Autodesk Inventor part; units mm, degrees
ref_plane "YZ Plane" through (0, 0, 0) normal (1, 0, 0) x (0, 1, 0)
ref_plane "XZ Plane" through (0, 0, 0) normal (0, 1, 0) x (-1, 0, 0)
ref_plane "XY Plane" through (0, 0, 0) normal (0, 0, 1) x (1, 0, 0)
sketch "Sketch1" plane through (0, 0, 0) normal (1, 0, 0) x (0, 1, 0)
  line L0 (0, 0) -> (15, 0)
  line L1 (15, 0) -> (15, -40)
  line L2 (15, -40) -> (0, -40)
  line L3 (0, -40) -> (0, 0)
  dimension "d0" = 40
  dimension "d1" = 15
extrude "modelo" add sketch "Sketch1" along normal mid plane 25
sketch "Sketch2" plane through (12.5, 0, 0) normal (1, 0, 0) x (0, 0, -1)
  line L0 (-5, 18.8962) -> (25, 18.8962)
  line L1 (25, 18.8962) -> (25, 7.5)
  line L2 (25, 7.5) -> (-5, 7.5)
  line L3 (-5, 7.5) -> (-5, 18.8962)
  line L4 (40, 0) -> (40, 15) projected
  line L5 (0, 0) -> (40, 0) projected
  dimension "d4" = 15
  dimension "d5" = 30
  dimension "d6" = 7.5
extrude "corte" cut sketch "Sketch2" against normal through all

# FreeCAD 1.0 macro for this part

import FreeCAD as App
import Part
import Sketcher

V = App.Vector

doc = App.newDocument("Part")
body = doc.addObject("PartDesign::Body", "Body")

# Sketch on YZ plane
sketch1 = body.newObject("Sketcher::SketchObject", "Sketch")
sketch1.AttachmentSupport = (doc.getObject("YZ_Plane"), [""])
sketch1.MapMode = "FlatFace"
sketch1.addGeometry([
    Part.LineSegment(V(15, 0, 0), V(0, 0, 0)),
    Part.LineSegment(V(0, 0, 0), V(0, -40, 0)),
    Part.LineSegment(V(0, -40, 0), V(15, -40, 0)),
    Part.LineSegment(V(15, -40, 0), V(15, 0, 0)),
], False)
sketch1.addConstraint([
    Sketcher.Constraint("Coincident", 0, 2, 1, 1),
    Sketcher.Constraint("Coincident", 1, 2, 2, 1),
    Sketcher.Constraint("Coincident", 2, 2, 3, 1),
    Sketcher.Constraint("Coincident", 3, 2, 0, 1),
    Sketcher.Constraint("Horizontal", 0),
    Sketcher.Constraint("Vertical", 1),
    Sketcher.Constraint("Horizontal", 2),
    Sketcher.Constraint("Vertical", 3),
    Sketcher.Constraint("Coincident", 0, 2, -1, 1),
    Sketcher.Constraint("DistanceX", 0, 2, 0, 1, 15.0),
    Sketcher.Constraint("DistanceY", 1, 2, 1, 1, 40.0),
])
pad1 = body.newObject("PartDesign::Pad", "Pad")
pad1.Profile = sketch1
pad1.Length = 25
pad1.Midplane = True

# Sketch on YZ plane
sketch2 = body.newObject("Sketcher::SketchObject", "Sketch001")
sketch2.AttachmentSupport = (doc.getObject("YZ_Plane"), [""])
sketch2.MapMode = "FlatFace"
sketch2.AttachmentOffset = App.Placement(V(0, 0, 12.5), App.Rotation())
sketch2.addGeometry([
    Part.LineSegment(V(19, -25, 0), V(19, 5, 0)),
    Part.LineSegment(V(19, 5, 0), V(8, 5, 0)),
    Part.LineSegment(V(8, 5, 0), V(8, -25, 0)),
    Part.LineSegment(V(8, -25, 0), V(19, -25, 0)),
], False)
sketch2.addConstraint([
    Sketcher.Constraint("Coincident", 0, 2, 1, 1),
    Sketcher.Constraint("Coincident", 1, 2, 2, 1),
    Sketcher.Constraint("Coincident", 2, 2, 3, 1),
    Sketcher.Constraint("Coincident", 3, 2, 0, 1),
    Sketcher.Constraint("Vertical", 0),
    Sketcher.Constraint("Horizontal", 1),
    Sketcher.Constraint("Vertical", 2),
    Sketcher.Constraint("Horizontal", 3),
    Sketcher.Constraint("DistanceY", 0, 1, 0, 2, 30.0),
    Sketcher.Constraint("DistanceX", -1, 1, 1, 2, 7.5),
    Sketcher.Constraint("DistanceY", -1, 1, 0, 2, 5.0),
    Sketcher.Constraint("DistanceX", 1, 2, 1, 1, 11.3962),
])
pocket1 = body.newObject("PartDesign::Pocket", "Pocket")
pocket1.Profile = sketch2
pocket1.Type = "ThroughAll"

doc.recompute()
